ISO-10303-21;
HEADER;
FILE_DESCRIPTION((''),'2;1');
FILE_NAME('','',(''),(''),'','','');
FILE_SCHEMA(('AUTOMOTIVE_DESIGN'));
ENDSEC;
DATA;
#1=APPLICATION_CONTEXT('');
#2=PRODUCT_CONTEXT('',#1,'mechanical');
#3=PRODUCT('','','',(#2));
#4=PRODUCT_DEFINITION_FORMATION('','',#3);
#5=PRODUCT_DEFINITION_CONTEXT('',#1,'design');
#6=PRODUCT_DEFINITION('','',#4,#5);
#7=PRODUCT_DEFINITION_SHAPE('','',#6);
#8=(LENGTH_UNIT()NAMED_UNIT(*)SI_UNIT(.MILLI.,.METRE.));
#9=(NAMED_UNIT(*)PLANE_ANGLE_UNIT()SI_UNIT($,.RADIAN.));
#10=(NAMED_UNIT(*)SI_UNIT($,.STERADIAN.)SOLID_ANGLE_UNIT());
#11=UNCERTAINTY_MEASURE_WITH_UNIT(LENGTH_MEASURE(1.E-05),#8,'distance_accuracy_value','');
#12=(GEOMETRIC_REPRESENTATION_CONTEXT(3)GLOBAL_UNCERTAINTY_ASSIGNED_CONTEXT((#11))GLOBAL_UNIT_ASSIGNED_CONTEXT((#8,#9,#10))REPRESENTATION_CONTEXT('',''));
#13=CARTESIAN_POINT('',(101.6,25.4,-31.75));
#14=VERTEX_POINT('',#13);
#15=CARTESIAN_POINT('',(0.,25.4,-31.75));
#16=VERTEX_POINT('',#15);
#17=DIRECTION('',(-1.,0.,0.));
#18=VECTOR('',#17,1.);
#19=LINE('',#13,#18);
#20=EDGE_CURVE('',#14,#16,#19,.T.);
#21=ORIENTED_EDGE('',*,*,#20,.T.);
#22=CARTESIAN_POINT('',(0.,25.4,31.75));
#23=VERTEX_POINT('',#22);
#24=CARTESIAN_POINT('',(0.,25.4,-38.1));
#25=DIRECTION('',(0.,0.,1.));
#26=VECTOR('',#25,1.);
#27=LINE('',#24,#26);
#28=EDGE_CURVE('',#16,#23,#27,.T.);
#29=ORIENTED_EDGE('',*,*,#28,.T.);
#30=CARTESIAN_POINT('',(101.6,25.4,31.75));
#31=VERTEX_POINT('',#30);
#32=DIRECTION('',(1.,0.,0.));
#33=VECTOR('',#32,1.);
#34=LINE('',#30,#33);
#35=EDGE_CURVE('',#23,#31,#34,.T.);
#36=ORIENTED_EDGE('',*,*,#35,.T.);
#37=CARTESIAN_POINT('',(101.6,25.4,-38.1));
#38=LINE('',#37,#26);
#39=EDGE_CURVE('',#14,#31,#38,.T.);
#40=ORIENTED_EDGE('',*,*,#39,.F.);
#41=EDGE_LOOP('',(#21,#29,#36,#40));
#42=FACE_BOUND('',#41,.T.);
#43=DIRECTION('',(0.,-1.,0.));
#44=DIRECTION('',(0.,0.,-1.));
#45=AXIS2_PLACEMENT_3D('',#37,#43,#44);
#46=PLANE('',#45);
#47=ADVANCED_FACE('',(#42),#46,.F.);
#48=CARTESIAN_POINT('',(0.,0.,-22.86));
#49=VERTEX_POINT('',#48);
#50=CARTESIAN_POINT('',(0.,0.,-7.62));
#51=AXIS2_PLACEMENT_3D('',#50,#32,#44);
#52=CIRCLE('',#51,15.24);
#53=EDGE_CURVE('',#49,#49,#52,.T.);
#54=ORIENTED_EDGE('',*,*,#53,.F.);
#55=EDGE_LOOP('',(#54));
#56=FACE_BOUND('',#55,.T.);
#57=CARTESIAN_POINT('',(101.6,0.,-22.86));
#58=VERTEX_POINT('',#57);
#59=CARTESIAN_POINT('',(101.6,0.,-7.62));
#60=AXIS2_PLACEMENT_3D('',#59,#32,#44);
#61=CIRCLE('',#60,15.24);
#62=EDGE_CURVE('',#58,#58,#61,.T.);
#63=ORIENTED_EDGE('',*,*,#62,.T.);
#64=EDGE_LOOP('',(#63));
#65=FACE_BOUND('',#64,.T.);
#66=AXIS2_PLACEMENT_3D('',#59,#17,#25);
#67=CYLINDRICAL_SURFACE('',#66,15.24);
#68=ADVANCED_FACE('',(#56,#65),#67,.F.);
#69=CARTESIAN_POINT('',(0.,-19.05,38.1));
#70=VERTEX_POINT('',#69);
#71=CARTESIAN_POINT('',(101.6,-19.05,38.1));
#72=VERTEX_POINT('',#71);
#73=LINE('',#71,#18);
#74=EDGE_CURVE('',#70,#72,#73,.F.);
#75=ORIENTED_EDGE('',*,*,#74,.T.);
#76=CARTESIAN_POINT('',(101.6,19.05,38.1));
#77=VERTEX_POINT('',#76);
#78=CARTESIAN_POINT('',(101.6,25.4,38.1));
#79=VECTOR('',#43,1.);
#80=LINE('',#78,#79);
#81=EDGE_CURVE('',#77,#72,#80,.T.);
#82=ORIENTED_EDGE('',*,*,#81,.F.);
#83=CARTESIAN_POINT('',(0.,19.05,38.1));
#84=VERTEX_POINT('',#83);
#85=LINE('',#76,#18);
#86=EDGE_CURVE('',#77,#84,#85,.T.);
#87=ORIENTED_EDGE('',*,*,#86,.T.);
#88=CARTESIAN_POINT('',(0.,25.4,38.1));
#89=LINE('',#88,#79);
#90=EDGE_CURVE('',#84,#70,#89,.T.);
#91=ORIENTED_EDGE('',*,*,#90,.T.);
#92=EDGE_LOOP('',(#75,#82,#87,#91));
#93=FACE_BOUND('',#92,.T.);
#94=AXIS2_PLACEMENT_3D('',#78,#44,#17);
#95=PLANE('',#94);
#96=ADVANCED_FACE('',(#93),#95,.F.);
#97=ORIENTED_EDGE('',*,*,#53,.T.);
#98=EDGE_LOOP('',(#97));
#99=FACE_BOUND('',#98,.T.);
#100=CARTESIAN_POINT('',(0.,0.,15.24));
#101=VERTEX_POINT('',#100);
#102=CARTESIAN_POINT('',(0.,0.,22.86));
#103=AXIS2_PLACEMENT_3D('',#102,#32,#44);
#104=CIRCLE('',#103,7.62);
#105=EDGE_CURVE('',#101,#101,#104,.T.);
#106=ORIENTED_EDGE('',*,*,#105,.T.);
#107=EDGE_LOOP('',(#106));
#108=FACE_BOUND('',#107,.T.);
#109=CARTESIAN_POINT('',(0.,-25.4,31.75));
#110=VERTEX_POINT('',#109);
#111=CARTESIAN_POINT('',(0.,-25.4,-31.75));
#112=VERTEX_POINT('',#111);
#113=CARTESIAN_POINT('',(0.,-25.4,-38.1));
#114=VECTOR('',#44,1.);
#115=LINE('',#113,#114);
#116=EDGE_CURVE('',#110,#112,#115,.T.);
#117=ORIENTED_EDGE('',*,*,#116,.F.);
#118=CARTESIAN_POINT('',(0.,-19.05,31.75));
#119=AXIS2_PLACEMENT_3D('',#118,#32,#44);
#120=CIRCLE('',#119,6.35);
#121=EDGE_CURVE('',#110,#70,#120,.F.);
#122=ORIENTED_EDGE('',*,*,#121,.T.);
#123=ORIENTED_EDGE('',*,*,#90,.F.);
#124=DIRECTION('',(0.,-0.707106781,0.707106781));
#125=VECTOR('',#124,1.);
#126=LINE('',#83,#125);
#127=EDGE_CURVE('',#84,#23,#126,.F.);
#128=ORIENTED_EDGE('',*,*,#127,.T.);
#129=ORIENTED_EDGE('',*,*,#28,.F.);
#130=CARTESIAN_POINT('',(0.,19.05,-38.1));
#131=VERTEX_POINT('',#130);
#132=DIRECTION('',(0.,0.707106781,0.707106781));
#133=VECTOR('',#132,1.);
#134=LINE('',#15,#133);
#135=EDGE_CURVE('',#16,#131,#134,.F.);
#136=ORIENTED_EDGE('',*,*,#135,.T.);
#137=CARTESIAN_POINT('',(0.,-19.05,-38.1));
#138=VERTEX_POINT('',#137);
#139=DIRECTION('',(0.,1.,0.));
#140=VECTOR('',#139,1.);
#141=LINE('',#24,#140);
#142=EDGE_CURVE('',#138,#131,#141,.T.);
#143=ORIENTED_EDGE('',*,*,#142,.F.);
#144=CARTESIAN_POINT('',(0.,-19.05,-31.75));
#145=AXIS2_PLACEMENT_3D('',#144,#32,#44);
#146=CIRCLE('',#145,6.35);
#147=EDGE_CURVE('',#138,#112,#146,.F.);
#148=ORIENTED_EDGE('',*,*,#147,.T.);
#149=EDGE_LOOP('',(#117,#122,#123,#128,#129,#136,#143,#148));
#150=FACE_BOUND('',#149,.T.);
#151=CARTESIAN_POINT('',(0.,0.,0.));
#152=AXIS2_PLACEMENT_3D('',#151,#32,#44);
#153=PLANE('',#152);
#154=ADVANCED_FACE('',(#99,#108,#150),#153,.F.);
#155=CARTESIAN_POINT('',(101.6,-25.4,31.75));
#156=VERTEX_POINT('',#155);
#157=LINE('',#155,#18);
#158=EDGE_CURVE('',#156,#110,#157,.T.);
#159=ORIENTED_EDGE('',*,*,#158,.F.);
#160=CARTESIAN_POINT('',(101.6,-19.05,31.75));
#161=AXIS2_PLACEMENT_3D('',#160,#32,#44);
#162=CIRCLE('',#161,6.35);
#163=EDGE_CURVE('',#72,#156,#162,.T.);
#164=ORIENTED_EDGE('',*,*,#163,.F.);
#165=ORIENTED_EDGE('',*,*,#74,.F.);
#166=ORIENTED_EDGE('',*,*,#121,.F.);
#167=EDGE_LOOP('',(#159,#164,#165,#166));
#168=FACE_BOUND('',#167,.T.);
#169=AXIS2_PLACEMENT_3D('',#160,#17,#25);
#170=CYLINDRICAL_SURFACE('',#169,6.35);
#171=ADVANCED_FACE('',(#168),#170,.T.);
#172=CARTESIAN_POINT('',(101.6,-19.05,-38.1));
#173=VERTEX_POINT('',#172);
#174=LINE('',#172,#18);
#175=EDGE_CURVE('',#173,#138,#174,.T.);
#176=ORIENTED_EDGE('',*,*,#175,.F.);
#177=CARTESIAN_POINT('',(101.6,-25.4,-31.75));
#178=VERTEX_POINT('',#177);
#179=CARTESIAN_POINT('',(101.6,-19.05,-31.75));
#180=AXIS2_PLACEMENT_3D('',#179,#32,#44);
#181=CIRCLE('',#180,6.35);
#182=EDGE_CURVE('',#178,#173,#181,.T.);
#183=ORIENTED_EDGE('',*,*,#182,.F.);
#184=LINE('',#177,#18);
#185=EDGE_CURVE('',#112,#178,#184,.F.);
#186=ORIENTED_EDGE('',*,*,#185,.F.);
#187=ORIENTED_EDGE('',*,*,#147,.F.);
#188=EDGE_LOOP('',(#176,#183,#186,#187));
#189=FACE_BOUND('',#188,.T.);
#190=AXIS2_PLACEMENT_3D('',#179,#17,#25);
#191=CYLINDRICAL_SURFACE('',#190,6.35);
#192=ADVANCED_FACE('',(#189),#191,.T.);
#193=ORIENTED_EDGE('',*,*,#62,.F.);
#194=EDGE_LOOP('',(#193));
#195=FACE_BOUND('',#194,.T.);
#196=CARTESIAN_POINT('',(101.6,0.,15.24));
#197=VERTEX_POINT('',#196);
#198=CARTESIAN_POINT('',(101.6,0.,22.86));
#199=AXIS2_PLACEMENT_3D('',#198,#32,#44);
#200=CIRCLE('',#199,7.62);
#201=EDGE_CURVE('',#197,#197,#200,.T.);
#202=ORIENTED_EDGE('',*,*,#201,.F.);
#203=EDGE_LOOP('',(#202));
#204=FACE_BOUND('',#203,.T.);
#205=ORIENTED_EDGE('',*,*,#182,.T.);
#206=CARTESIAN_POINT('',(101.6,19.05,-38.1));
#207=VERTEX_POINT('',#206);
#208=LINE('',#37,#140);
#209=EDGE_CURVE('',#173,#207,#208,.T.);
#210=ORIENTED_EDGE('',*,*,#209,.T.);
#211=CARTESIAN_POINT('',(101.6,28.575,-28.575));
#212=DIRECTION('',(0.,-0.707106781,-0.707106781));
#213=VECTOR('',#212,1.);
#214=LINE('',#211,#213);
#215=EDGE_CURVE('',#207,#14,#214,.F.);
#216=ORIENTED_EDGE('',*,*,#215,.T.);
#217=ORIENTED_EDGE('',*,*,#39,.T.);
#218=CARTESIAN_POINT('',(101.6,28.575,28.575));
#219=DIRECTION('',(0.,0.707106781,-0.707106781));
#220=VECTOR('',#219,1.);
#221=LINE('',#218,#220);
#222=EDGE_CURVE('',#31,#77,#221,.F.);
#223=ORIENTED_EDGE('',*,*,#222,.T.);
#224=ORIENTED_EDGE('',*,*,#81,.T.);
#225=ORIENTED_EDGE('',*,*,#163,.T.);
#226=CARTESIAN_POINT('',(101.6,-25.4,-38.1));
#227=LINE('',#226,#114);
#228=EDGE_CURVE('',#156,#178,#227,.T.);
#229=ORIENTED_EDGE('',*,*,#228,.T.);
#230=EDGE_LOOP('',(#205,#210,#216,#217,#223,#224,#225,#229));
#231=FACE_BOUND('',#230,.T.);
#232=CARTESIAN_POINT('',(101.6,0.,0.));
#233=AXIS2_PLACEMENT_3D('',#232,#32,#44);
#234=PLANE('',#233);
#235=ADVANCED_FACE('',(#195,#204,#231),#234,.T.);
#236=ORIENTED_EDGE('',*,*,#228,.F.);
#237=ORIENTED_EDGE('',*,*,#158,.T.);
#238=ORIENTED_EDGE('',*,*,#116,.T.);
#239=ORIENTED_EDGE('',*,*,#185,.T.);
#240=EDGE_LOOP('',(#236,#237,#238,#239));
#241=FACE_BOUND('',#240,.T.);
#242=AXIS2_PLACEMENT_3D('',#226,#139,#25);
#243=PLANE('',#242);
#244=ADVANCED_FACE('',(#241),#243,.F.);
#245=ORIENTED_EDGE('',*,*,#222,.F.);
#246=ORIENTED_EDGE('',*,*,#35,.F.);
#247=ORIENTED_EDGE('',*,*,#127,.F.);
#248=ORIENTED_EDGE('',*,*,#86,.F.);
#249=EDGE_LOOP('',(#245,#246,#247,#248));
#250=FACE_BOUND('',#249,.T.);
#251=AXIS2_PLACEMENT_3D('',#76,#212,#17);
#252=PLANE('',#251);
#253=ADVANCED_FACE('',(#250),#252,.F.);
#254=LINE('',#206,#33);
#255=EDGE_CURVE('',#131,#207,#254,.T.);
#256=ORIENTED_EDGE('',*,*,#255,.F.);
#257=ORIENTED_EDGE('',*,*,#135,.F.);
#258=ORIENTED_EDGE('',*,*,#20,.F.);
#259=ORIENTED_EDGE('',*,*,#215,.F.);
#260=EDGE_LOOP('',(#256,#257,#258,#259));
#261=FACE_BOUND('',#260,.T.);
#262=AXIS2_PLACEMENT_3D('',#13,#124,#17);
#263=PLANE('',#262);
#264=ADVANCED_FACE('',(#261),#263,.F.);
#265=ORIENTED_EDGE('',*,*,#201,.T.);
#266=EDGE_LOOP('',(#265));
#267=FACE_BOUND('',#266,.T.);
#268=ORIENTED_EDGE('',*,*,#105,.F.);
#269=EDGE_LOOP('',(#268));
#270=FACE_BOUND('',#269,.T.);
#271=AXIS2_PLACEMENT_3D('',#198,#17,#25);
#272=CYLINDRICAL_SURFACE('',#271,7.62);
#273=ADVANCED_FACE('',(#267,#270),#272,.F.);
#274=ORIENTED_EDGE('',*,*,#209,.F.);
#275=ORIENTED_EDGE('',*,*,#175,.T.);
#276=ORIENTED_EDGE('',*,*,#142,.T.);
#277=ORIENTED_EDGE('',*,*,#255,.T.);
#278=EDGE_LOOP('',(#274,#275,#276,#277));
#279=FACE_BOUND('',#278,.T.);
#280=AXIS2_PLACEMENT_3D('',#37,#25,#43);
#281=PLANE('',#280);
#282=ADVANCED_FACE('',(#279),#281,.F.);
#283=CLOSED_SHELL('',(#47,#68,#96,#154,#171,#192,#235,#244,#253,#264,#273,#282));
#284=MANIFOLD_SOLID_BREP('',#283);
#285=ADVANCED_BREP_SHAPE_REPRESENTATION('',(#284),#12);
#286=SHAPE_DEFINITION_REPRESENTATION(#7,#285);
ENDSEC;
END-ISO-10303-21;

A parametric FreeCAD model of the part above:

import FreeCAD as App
import Part
import Sketcher

V = App.Vector
Q = App.Units.Quantity


def edges_at(feature, points):
    """Names of the edges that pass closest to the given points."""
    edges = feature.Shape.Edges
    near = lambda p: min(range(len(edges)), key=lambda i: edges[i].distToShape(Part.Vertex(*p))[0])
    return sorted({f"Edge{near(p) + 1}" for p in points})

doc = App.newDocument("Part")
body = doc.addObject("PartDesign::Body", "Body")

# Sketch on YZ plane
sketch1 = body.newObject("Sketcher::SketchObject", "Sketch")
sketch1.AttachmentSupport = (doc.getObject("YZ_Plane"), [""])
sketch1.MapMode = "FlatFace"
sketch1.addGeometry([
    Part.LineSegment(V(-25, 38, 0), V(-25, -38, 0)),  # 0
    Part.LineSegment(V(-25, -38, 0), V(25, -38, 0)),  # 1
    Part.LineSegment(V(25, -38, 0), V(25, 38, 0)),  # 2
    Part.LineSegment(V(25, 38, 0), V(-25, 38, 0)),  # 3
    Part.Circle(V(0, -8, 0), V(0, 0, 1), 15),  # 4
    Part.Circle(V(0, 23, 0), V(0, 0, 1), 8),  # 5
], False)
sketch1.addConstraint([
    Sketcher.Constraint("Coincident", 0, 2, 1, 1),
    Sketcher.Constraint("Coincident", 1, 2, 2, 1),
    Sketcher.Constraint("Coincident", 2, 2, 3, 1),
    Sketcher.Constraint("Coincident", 3, 2, 0, 1),
    Sketcher.Constraint("Vertical", 0),
    Sketcher.Constraint("Horizontal", 1),
    Sketcher.Constraint("Vertical", 2),
    Sketcher.Constraint("Horizontal", 3),
    Sketcher.Constraint("Symmetric", 0, 2, 2, 2, -1, 1),
    Sketcher.Constraint("PointOnObject", 4, 3, -2),
    Sketcher.Constraint("PointOnObject", 5, 3, -2),
    Sketcher.Constraint("Diameter", 4, Q("1.2 in")),
    Sketcher.Constraint("Diameter", 5, Q("0.6 in")),
    Sketcher.Constraint("DistanceX", 1, 1, 1, 2, Q("2 in")),
    Sketcher.Constraint("DistanceY", 0, 2, 0, 1, Q("3 in")),
    Sketcher.Constraint("DistanceY", 4, 3, -1, 1, Q("0.3 in")),
    Sketcher.Constraint("DistanceY", -1, 1, 5, 3, Q("0.9 in")),
])
pad1 = body.newObject("PartDesign::Pad", "Pad")
pad1.Profile = sketch1
pad1.Length = Q("4 in")
doc.recompute()

fillet = body.newObject("PartDesign::Fillet", "Fillet")
fillet.Base = (pad1, edges_at(pad1, [(50.8, -25.4, 38.1), (50.8, -25.4, -38.1)]))
fillet.Radius = Q("0.25 in")
doc.recompute()

chamfer = body.newObject("PartDesign::Chamfer", "Chamfer")
chamfer.Base = (fillet, edges_at(fillet, [(50.8, 25.4, 38.1), (50.8, 25.4, -38.1)]))
chamfer.Size = Q("0.25 in")

doc.recompute()
